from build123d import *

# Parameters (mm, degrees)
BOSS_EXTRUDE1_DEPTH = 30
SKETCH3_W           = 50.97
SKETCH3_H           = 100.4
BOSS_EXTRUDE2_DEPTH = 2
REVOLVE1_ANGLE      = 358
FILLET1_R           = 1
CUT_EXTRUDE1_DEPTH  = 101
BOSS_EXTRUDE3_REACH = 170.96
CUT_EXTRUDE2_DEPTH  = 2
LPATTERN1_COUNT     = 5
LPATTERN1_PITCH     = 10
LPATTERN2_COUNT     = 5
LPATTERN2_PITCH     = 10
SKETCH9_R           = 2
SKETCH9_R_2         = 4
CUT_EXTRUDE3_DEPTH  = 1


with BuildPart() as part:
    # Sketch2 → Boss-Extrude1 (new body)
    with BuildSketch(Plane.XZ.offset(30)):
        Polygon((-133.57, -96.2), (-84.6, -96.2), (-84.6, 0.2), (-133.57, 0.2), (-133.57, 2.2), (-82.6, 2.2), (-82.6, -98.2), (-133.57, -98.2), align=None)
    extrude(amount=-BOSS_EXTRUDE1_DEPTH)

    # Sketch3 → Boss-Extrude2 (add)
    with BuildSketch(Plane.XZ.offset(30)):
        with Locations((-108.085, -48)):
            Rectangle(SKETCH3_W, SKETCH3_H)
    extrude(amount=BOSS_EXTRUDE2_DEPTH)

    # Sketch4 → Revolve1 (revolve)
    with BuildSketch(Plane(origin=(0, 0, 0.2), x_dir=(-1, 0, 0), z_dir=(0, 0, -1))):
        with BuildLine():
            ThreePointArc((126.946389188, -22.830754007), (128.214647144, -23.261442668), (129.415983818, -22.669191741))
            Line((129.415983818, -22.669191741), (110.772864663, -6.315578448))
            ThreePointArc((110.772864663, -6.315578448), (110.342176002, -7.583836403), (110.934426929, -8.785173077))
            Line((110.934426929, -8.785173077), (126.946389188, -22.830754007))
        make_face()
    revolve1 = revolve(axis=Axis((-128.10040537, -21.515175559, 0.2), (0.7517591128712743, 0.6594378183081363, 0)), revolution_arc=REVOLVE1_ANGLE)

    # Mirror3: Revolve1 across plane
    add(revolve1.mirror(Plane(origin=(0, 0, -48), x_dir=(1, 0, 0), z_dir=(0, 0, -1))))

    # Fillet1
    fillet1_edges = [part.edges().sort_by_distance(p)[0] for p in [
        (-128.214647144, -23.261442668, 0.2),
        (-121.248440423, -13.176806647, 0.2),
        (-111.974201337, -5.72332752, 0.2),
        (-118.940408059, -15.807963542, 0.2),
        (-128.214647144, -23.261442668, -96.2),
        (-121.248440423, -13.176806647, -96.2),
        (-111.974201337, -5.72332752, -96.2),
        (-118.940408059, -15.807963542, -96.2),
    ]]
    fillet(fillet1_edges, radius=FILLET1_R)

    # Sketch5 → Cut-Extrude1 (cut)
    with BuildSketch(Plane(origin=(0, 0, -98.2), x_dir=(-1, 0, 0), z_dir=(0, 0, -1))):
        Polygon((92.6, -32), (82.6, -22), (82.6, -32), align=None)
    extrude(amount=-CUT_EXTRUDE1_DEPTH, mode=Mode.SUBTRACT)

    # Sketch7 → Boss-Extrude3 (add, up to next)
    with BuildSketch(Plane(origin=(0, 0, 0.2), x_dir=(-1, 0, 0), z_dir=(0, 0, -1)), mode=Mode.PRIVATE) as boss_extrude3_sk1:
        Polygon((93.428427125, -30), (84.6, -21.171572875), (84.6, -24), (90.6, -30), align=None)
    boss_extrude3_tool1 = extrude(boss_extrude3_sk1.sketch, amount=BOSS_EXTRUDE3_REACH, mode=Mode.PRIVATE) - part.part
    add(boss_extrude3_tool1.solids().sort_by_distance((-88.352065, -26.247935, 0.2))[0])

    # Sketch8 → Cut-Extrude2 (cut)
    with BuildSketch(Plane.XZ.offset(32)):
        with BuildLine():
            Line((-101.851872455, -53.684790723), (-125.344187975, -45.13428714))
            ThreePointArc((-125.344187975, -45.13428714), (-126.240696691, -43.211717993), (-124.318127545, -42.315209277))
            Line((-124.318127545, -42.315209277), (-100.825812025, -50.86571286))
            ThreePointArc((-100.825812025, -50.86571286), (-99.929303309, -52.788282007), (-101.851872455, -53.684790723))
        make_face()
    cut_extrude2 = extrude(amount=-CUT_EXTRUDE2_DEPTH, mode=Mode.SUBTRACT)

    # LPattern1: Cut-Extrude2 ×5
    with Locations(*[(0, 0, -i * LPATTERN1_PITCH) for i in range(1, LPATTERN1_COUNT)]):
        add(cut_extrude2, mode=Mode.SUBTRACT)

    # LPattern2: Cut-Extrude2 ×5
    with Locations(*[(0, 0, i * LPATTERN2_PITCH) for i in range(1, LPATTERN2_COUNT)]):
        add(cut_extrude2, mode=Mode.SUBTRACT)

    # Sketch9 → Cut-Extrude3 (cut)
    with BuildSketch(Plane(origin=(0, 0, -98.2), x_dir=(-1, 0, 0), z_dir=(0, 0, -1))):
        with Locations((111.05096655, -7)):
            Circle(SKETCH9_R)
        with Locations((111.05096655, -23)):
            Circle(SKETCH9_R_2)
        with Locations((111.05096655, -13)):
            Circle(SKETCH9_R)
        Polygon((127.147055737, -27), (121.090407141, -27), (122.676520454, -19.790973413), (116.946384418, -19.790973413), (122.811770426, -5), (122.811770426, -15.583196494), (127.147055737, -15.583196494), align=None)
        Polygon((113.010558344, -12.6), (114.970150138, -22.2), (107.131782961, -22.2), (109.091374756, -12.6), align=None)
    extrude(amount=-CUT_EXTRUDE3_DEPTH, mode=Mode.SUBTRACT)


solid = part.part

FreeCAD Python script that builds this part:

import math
import FreeCAD as App
import Part
import Sketcher
from FreeCAD import Vector
Q = App.Units.Quantity


def edges_at(feature, points):
    """Names of the edges that pass closest to the given points."""
    edges = feature.Shape.Edges
    near = lambda p: min(range(len(edges)), key=lambda i: edges[i].distToShape(Part.Vertex(*p))[0])
    return sorted({f"Edge{near(p) + 1}" for p in points})


def add_polygon(sketch, points):
    """Adds a closed chain of lines whose ends are joined by coincident constraints."""
    first, n = sketch.GeometryCount, len(points)
    for a, b in zip(points, points[1:] + points[:1]):
        sketch.addGeometry(Part.LineSegment(App.Vector(*a, 0), App.Vector(*b, 0)), False)
    for i in range(n):
        sketch.addConstraint(Sketcher.Constraint("Coincident", first + i, 2, first + (i + 1) % n, 1))

doc = App.newDocument("Part")
body = doc.addObject("PartDesign::Body", "Body")

sketch1 = body.newObject("Sketcher::SketchObject", "Sketch")
sketch1.AttachmentSupport = (doc.getObject("XZ_Plane"), [""])
sketch1.MapMode = "FlatFace"
sketch1.AttachmentOffset = App.Placement(Vector(0, 0, 30), App.Rotation())
add_polygon(sketch1, [(-84.6, -96.2), (-133.6, -96.2), (-133.6, -98.2), (-82.6, -98.2), (-82.6, 2.2), (-133.6, 2.2), (-133.6, 0.2), (-84.6, 0.2)])
sketch1.addConstraint(Sketcher.Constraint("Horizontal", 0))
sketch1.addConstraint(Sketcher.Constraint("Vertical", 1))
sketch1.addConstraint(Sketcher.Constraint("Horizontal", 2))
sketch1.addConstraint(Sketcher.Constraint("Vertical", 3))
sketch1.addConstraint(Sketcher.Constraint("Horizontal", 4))
sketch1.addConstraint(Sketcher.Constraint("Vertical", 5))
sketch1.addConstraint(Sketcher.Constraint("Horizontal", 6))
sketch1.addConstraint(Sketcher.Constraint("Vertical", 7))
sketch1.addConstraint(Sketcher.Constraint("Vertical", 1, 2, 4, 2))
sketch1.addConstraint(Sketcher.Constraint("Equal", 1, 5))
sketch1.addConstraint(Sketcher.Constraint("DistanceY", 1, 2, 1, 1, Q("2 mm")))
sketch1.addConstraint(Sketcher.Constraint("DistanceY", 3, 1, 3, 2, Q("100.4 mm")))
sketch1.addConstraint(Sketcher.Constraint("DistanceX", 6, 2, 3, 2, Q("2 mm")))
sketch1.addConstraint(Sketcher.Constraint("DistanceX", 0, 2, 0, 1, Q("48.97 mm")))
sketch1.addConstraint(Sketcher.Constraint("DistanceY", 0, 2, -1, 1, Q("96.2 mm")))
sketch1.addConstraint(Sketcher.Constraint("DistanceX", 2, 2, -1, 1, Q("82.6 mm")))
pad1 = body.newObject("PartDesign::Pad", "Pad")
pad1.Profile = sketch1
pad1.Length = 30
pad1.Reversed = True

sketch2 = body.newObject("Sketcher::SketchObject", "Sketch001")
sketch2.AttachmentSupport = (doc.getObject("XZ_Plane"), [""])
sketch2.MapMode = "FlatFace"
sketch2.AttachmentOffset = App.Placement(Vector(0, 0, 30), App.Rotation())
add_polygon(sketch2, [(-134, 2), (-134, -98), (-83, -98), (-83, 2)])
sketch2.addConstraint(Sketcher.Constraint("Vertical", 0))
sketch2.addConstraint(Sketcher.Constraint("Horizontal", 1))
sketch2.addConstraint(Sketcher.Constraint("Vertical", 2))
sketch2.addConstraint(Sketcher.Constraint("Horizontal", 3))
sketch2.addConstraint(Sketcher.Constraint("DistanceY", 0, 2, 0, 1, Q("100.4 mm")))
sketch2.addConstraint(Sketcher.Constraint("DistanceX", 1, 1, 1, 2, Q("50.97 mm")))
sketch2.addConstraint(Sketcher.Constraint("DistanceY", 0, 2, -1, 1, Q("98.2 mm")))
sketch2.addConstraint(Sketcher.Constraint("DistanceX", 1, 2, -1, 1, Q("82.6 mm")))
pad2 = body.newObject("PartDesign::Pad", "Pad001")
pad2.Profile = sketch2
pad2.Length = 2

sketch3 = body.newObject("Sketcher::SketchObject", "Sketch002")
sketch3.AttachmentSupport = (doc.getObject("XY_Plane"), [""])
sketch3.MapMode = "FlatFace"
sketch3.AttachmentOffset = App.Placement(Vector(0, 0, 0.2), App.Rotation())
sketch3.addGeometry(Part.ArcOfCircle(Part.Circle(Vector(-128.1, -21.5, 0), Vector(0, 0, 1), 1.8), math.radians(-139), math.radians(-49)), False)
sketch3.addGeometry(Part.LineSegment(Vector(-129.4, -22.7, 0), Vector(-110.8, -6.3, 0)), False)
sketch3.addGeometry(Part.ArcOfCircle(Part.Circle(Vector(-112.1, -7.5, 0), Vector(0, 0, 1), 1.8), math.radians(-49), math.radians(41)), False)
sketch3.addGeometry(Part.LineSegment(Vector(-110.9, -8.8, 0), Vector(-126.9, -22.8, 0)), False)
sketch3.addGeometry(Part.LineSegment(Vector(-129.4, -22.7, 0), Vector(-110.8, -6.3, 0)), True)
sketch3.addConstraint(Sketcher.Constraint("Coincident", 0, 1, 1, 1))
sketch3.addConstraint(Sketcher.Constraint("Coincident", 1, 2, 2, 2))
sketch3.addConstraint(Sketcher.Constraint("Tangent", 2, 1, 3, 1))
sketch3.addConstraint(Sketcher.Constraint("Tangent", 3, 2, 0, 2))
sketch3.addConstraint(Sketcher.Constraint("Coincident", 4, 1, 0, 1))
sketch3.addConstraint(Sketcher.Constraint("Coincident", 4, 2, 1, 2))
sketch3.addConstraint(Sketcher.Constraint("Equal", 0, 2))
sketch3.addConstraint(Sketcher.Constraint("Parallel", 1, 3))
sketch3.addConstraint(Sketcher.Constraint("Radius", 0, Q("1.75 mm")))
sketch3.addConstraint(Sketcher.Constraint("DistanceY", 0, 1, -1, 1, Q("22.669192 mm")))
sketch3.addConstraint(Sketcher.Constraint("DistanceY", 1, 2, -1, 1, Q("6.315578 mm")))
sketch3.addConstraint(Sketcher.Constraint("DistanceX", 3, 2, -1, 1, Q("126.946389 mm")))
sketch3.addConstraint(Sketcher.Constraint("DistanceY", 0, 3, 2, 3, Q("14.045581 mm")))
sketch3.addConstraint(Sketcher.Constraint("DistanceX", 0, 1, 0, 3, Q("1.315578 mm")))
revolution = body.newObject("PartDesign::Revolution", "Revolution")
revolution.Profile = sketch3
revolution.ReferenceAxis = (sketch3, ["Axis0"])
revolution.Angle = 358
doc.recompute()

datumplane = body.newObject("PartDesign::Plane", "DatumPlane")
datumplane.AttachmentSupport = (doc.getObject("XY_Plane"), [""])
datumplane.MapMode = "FlatFace"
datumplane.AttachmentOffset = App.Placement(Vector(0, 0, -48), App.Rotation())
mirrored = body.newObject("PartDesign::Mirrored", "Mirrored")
mirrored.Originals = [revolution]
mirrored.MirrorPlane = (datumplane, [""])
body.Tip = mirrored
doc.recompute()

fillet = body.newObject("PartDesign::Fillet", "Fillet")
fillet.Base = (mirrored, edges_at(mirrored, [
    (-128.215, -23.261, 0.2),
    (-121.248, -13.177, 0.2),
    (-111.974, -5.723, 0.2),
    (-118.94, -15.808, 0.2),
    (-128.215, -23.261, -96.2),
    (-121.248, -13.177, -96.2),
    (-111.974, -5.723, -96.2),
    (-118.94, -15.808, -96.2),
]))
fillet.Radius = 1

sketch4 = body.newObject("Sketcher::SketchObject", "Sketch003")
sketch4.AttachmentSupport = (doc.getObject("XY_Plane"), [""])
sketch4.MapMode = "FlatFace"
sketch4.AttachmentOffset = App.Placement(Vector(0, 0, -98.2), App.Rotation())
add_polygon(sketch4, [(-93, -32), (-83, -22), (-83, -32)])
sketch4.addConstraint(Sketcher.Constraint("Vertical", 1))
sketch4.addConstraint(Sketcher.Constraint("Horizontal", 2))
sketch4.addConstraint(Sketcher.Constraint("Equal", 2, 1))
sketch4.addConstraint(Sketcher.Constraint("DistanceX", 2, 2, 2, 1, Q("10 mm")))
sketch4.addConstraint(Sketcher.Constraint("DistanceY", 0, 2, -1, 1, Q("22 mm")))
sketch4.addConstraint(Sketcher.Constraint("DistanceX", 0, 2, -1, 1, Q("82.6 mm")))
pocket1 = body.newObject("PartDesign::Pocket", "Pocket")
pocket1.Profile = sketch4
pocket1.Length = 101
pocket1.Reversed = True

sketch5 = body.newObject("Sketcher::SketchObject", "Sketch004")
sketch5.AttachmentSupport = (doc.getObject("XY_Plane"), [""])
sketch5.MapMode = "FlatFace"
sketch5.AttachmentOffset = App.Placement(Vector(0, 0, 0.2), App.Rotation())
add_polygon(sketch5, [(-93.4, -30), (-84.6, -21.2), (-84.6, -24), (-90.6, -30)])
sketch5.addConstraint(Sketcher.Constraint("Vertical", 1))
sketch5.addConstraint(Sketcher.Constraint("Horizontal", 3))
sketch5.addConstraint(Sketcher.Constraint("Parallel", 0, 2))
sketch5.addConstraint(Sketcher.Constraint("Equal", 3, 1))
sketch5.addConstraint(Sketcher.Constraint("DistanceY", 1, 2, -1, 1, Q("24 mm")))
sketch5.addConstraint(Sketcher.Constraint("DistanceY", 2, 2, -1, 1, Q("30 mm")))
sketch5.addConstraint(Sketcher.Constraint("DistanceX", 0, 2, -1, 1, Q("84.6 mm")))
sketch5.addConstraint(Sketcher.Constraint("Distance", 0, Q("12.485281 mm")))
pad3 = body.newObject("PartDesign::Pad", "Pad002")
pad3.Profile = sketch5
pad3.Type = "UpToFirst"
pad3.Reversed = True

sketch6 = body.newObject("Sketcher::SketchObject", "Sketch005")
sketch6.AttachmentSupport = (doc.getObject("XZ_Plane"), [""])
sketch6.MapMode = "FlatFace"
sketch6.AttachmentOffset = App.Placement(Vector(0, 0, 32), App.Rotation())
sketch6.addGeometry(Part.LineSegment(Vector(-125.3, -45.1, 0), Vector(-101.9, -53.7, 0)), False)
sketch6.addGeometry(Part.ArcOfCircle(Part.Circle(Vector(-101.3, -52.3, 0), Vector(0, 0, 1), 1.5), math.radians(-110), math.radians(70)), False)
sketch6.addGeometry(Part.LineSegment(Vector(-100.8, -50.9, 0), Vector(-124.3, -42.3, 0)), False)
sketch6.addGeometry(Part.ArcOfCircle(Part.Circle(Vector(-124.8, -43.7, 0), Vector(0, 0, 1), 1.5), math.radians(70), math.radians(250)), False)
sketch6.addConstraint(Sketcher.Constraint("Tangent", 0, 2, 1, 1))
sketch6.addConstraint(Sketcher.Constraint("Tangent", 1, 2, 2, 1))
sketch6.addConstraint(Sketcher.Constraint("Tangent", 2, 2, 3, 1))
sketch6.addConstraint(Sketcher.Constraint("Tangent", 3, 2, 0, 1))
sketch6.addConstraint(Sketcher.Constraint("Equal", 1, 3))
sketch6.addConstraint(Sketcher.Constraint("Radius", 1, Q("1.5 mm")))
sketch6.addConstraint(Sketcher.Constraint("Angle", 0, Q("-20 deg")))
sketch6.addConstraint(Sketcher.Constraint("Distance", 0, Q("25 mm")))
sketch6.addConstraint(Sketcher.Constraint("DistanceY", 1, 3, -1, 1, Q("52.275252 mm")))
sketch6.addConstraint(Sketcher.Constraint("DistanceX", 1, 3, -1, 1, Q("101.338842 mm")))
pocket2 = body.newObject("PartDesign::Pocket", "Pocket001")
pocket2.Profile = sketch6
pocket2.Length = 2
doc.recompute()

linearpattern = body.newObject("PartDesign::LinearPattern", "LinearPattern")
linearpattern.Originals = [pocket2]
linearpattern.Direction = (doc.getObject("Z_Axis"), [""])
linearpattern.Mode = "offset"
linearpattern.Offset = 10
linearpattern.Occurrences = 5
linearpattern.Reversed = True
body.Tip = linearpattern
doc.recompute()

linearpattern2 = body.newObject("PartDesign::LinearPattern", "LinearPattern001")
linearpattern2.Originals = [pocket2]
linearpattern2.Direction = (doc.getObject("Z_Axis"), [""])
linearpattern2.Mode = "offset"
linearpattern2.Offset = 10
linearpattern2.Occurrences = 5
body.Tip = linearpattern2

sketch7 = body.newObject("Sketcher::SketchObject", "Sketch006")
sketch7.AttachmentSupport = (doc.getObject("XY_Plane"), [""])
sketch7.MapMode = "FlatFace"
sketch7.AttachmentOffset = App.Placement(Vector(0, 0, -98.2), App.Rotation())
sketch7.addGeometry(Part.Circle(Vector(-111.1, -7, 0), Vector(0, 0, 1), 2), False)
sketch7.addGeometry(Part.ArcOfCircle(Part.Circle(Vector(-111.1, -23, 0), Vector(0, 0, 1), 4), math.radians(168), math.radians(372)), False)
sketch7.addGeometry(Part.LineSegment(Vector(-115, -22.2, 0), Vector(-113, -12.6, 0)), False)
sketch7.addGeometry(Part.ArcOfCircle(Part.Circle(Vector(-111.1, -13, 0), Vector(0, 0, 1), 2), math.radians(12), math.radians(168)), False)
sketch7.addGeometry(Part.LineSegment(Vector(-109.1, -12.6, 0), Vector(-107.1, -22.2, 0)), False)
add_polygon(sketch7, [(-121.1, -27), (-127.1, -27), (-127.1, -15.6), (-122.8, -15.6), (-122.8, -5), (-116.9, -19.8), (-122.7, -19.8)])
sketch7.addConstraint(Sketcher.Constraint("Tangent", 1, 1, 2, 1))
sketch7.addConstraint(Sketcher.Constraint("Tangent", 2, 2, 3, 2))
sketch7.addConstraint(Sketcher.Constraint("Tangent", 3, 1, 4, 1))
sketch7.addConstraint(Sketcher.Constraint("Tangent", 4, 2, 1, 2))
sketch7.addConstraint(Sketcher.Constraint("Horizontal", 5))
sketch7.addConstraint(Sketcher.Constraint("Vertical", 6))
sketch7.addConstraint(Sketcher.Constraint("Horizontal", 7))
sketch7.addConstraint(Sketcher.Constraint("Vertical", 8))
sketch7.addConstraint(Sketcher.Constraint("Horizontal", 10))
sketch7.addConstraint(Sketcher.Constraint("Equal", 0, 3))
sketch7.addConstraint(Sketcher.Constraint("Horizontal", 2, 2, 3, 1))
sketch7.addConstraint(Sketcher.Constraint("Vertical", 0, 3, 1, 3))
sketch7.addConstraint(Sketcher.Constraint("Diameter", 0, Q("4 mm")))
sketch7.addConstraint(Sketcher.Constraint("Radius", 1, Q("4 mm")))
sketch7.addConstraint(Sketcher.Constraint("DistanceY", 0, 3, -1, 1, Q("7 mm")))
sketch7.addConstraint(Sketcher.Constraint("DistanceY", 1, 3, -1, 1, Q("23 mm")))
sketch7.addConstraint(Sketcher.Constraint("DistanceY", 3, 3, -1, 1, Q("13 mm")))
sketch7.addConstraint(Sketcher.Constraint("DistanceY", 5, 2, -1, 1, Q("27 mm")))
sketch7.addConstraint(Sketcher.Constraint("DistanceY", 8, 2, -1, 1, Q("5 mm")))
sketch7.addConstraint(Sketcher.Constraint("DistanceX", 5, 2, 5, 1, Q("6.056649 mm")))
sketch7.addConstraint(Sketcher.Constraint("Distance", 11, Q("7.381451 mm")))
sketch7.addConstraint(Sketcher.Constraint("DistanceX", 7, 1, 7, 2, Q("4.335285 mm")))
sketch7.addConstraint(Sketcher.Constraint("DistanceX", 10, 2, 10, 1, Q("5.730136 mm")))
sketch7.addConstraint(Sketcher.Constraint("DistanceY", 6, 1, 6, 2, Q("11.416804 mm")))
sketch7.addConstraint(Sketcher.Constraint("DistanceX", 1, 1, -1, 1, Q("114.97015 mm")))
sketch7.addConstraint(Sketcher.Constraint("DistanceX", 7, 2, -1, 1, Q("122.81177 mm")))
sketch7.addConstraint(Sketcher.Constraint("DistanceX", 10, 2, -1, 1, Q("122.67652 mm")))
pocket3 = body.newObject("PartDesign::Pocket", "Pocket002")
pocket3.Profile = sketch7
pocket3.Length = 1
pocket3.Reversed = True

doc.recompute()
